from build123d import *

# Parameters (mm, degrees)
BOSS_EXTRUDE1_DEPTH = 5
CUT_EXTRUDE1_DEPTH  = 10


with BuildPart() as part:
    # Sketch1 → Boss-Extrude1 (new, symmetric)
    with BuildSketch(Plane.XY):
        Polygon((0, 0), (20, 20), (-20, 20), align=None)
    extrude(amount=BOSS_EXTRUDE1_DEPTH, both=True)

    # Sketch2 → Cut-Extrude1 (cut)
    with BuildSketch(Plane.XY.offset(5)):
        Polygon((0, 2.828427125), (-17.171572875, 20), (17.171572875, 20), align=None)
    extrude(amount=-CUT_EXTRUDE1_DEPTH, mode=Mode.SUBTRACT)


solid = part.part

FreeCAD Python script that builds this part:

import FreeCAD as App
import Part
import Sketcher
from FreeCAD import Vector
Q = App.Units.Quantity


def add_polygon(sketch, points):
    """Adds a closed chain of lines whose ends are joined by coincident constraints."""
    first, n = sketch.GeometryCount, len(points)
    for a, b in zip(points, points[1:] + points[:1]):
        sketch.addGeometry(Part.LineSegment(App.Vector(*a, 0), App.Vector(*b, 0)), False)
    for i in range(n):
        sketch.addConstraint(Sketcher.Constraint("Coincident", first + i, 2, first + (i + 1) % n, 1))

doc = App.newDocument("Part")
body = doc.addObject("PartDesign::Body", "Body")

sketch1 = doc.addObject("Sketcher::SketchObject", "Sketch")
body.addObject(sketch1)
sketch1.AttachmentSupport = (doc.XY_Plane, [""])
sketch1.MapMode = "FlatFace"
add_polygon(sketch1, [(0, 0), (20, 20), (-20, 20)])
sketch1.addConstraint(Sketcher.Constraint("Horizontal", 1))
sketch1.addConstraint(Sketcher.Constraint("Coincident", 2, 2, -1, 1))
sketch1.addConstraint(Sketcher.Constraint("Perpendicular", 0, 2))
sketch1.addConstraint(Sketcher.Constraint("Equal", 0, 2))
sketch1.addConstraint(Sketcher.Constraint("DistanceX", 1, 2, 1, 1, Q("40 mm")))
pad1 = doc.addObject("PartDesign::Pad", "Pad")
body.addObject(pad1)
pad1.Profile = sketch1
pad1.Length = 10
pad1.Midplane = True

sketch2 = doc.addObject("Sketcher::SketchObject", "Sketch001")
body.addObject(sketch2)
sketch2.AttachmentSupport = (doc.XY_Plane, [""])
sketch2.MapMode = "FlatFace"
sketch2.AttachmentOffset = App.Placement(Vector(0, 0, 5), App.Rotation())
add_polygon(sketch2, [(-17.171573, 20), (0, 2.828427), (17.171573, 20)])
sketch2.addConstraint(Sketcher.Constraint("Horizontal", 2))
sketch2.addConstraint(Sketcher.Constraint("PointOnObject", 0, 2, -2))
sketch2.addConstraint(Sketcher.Constraint("Perpendicular", 0, 1))
sketch2.addConstraint(Sketcher.Constraint("Equal", 0, 1))
sketch2.addConstraint(Sketcher.Constraint("DistanceY", -1, 1, 1, 2, Q("20 mm")))
sketch2.addConstraint(Sketcher.Constraint("Distance", 0, Q("24.284271 mm")))
pocket1 = doc.addObject("PartDesign::Pocket", "Pocket")
body.addObject(pocket1)
pocket1.Profile = sketch2
pocket1.Length = 10

doc.recompute()
